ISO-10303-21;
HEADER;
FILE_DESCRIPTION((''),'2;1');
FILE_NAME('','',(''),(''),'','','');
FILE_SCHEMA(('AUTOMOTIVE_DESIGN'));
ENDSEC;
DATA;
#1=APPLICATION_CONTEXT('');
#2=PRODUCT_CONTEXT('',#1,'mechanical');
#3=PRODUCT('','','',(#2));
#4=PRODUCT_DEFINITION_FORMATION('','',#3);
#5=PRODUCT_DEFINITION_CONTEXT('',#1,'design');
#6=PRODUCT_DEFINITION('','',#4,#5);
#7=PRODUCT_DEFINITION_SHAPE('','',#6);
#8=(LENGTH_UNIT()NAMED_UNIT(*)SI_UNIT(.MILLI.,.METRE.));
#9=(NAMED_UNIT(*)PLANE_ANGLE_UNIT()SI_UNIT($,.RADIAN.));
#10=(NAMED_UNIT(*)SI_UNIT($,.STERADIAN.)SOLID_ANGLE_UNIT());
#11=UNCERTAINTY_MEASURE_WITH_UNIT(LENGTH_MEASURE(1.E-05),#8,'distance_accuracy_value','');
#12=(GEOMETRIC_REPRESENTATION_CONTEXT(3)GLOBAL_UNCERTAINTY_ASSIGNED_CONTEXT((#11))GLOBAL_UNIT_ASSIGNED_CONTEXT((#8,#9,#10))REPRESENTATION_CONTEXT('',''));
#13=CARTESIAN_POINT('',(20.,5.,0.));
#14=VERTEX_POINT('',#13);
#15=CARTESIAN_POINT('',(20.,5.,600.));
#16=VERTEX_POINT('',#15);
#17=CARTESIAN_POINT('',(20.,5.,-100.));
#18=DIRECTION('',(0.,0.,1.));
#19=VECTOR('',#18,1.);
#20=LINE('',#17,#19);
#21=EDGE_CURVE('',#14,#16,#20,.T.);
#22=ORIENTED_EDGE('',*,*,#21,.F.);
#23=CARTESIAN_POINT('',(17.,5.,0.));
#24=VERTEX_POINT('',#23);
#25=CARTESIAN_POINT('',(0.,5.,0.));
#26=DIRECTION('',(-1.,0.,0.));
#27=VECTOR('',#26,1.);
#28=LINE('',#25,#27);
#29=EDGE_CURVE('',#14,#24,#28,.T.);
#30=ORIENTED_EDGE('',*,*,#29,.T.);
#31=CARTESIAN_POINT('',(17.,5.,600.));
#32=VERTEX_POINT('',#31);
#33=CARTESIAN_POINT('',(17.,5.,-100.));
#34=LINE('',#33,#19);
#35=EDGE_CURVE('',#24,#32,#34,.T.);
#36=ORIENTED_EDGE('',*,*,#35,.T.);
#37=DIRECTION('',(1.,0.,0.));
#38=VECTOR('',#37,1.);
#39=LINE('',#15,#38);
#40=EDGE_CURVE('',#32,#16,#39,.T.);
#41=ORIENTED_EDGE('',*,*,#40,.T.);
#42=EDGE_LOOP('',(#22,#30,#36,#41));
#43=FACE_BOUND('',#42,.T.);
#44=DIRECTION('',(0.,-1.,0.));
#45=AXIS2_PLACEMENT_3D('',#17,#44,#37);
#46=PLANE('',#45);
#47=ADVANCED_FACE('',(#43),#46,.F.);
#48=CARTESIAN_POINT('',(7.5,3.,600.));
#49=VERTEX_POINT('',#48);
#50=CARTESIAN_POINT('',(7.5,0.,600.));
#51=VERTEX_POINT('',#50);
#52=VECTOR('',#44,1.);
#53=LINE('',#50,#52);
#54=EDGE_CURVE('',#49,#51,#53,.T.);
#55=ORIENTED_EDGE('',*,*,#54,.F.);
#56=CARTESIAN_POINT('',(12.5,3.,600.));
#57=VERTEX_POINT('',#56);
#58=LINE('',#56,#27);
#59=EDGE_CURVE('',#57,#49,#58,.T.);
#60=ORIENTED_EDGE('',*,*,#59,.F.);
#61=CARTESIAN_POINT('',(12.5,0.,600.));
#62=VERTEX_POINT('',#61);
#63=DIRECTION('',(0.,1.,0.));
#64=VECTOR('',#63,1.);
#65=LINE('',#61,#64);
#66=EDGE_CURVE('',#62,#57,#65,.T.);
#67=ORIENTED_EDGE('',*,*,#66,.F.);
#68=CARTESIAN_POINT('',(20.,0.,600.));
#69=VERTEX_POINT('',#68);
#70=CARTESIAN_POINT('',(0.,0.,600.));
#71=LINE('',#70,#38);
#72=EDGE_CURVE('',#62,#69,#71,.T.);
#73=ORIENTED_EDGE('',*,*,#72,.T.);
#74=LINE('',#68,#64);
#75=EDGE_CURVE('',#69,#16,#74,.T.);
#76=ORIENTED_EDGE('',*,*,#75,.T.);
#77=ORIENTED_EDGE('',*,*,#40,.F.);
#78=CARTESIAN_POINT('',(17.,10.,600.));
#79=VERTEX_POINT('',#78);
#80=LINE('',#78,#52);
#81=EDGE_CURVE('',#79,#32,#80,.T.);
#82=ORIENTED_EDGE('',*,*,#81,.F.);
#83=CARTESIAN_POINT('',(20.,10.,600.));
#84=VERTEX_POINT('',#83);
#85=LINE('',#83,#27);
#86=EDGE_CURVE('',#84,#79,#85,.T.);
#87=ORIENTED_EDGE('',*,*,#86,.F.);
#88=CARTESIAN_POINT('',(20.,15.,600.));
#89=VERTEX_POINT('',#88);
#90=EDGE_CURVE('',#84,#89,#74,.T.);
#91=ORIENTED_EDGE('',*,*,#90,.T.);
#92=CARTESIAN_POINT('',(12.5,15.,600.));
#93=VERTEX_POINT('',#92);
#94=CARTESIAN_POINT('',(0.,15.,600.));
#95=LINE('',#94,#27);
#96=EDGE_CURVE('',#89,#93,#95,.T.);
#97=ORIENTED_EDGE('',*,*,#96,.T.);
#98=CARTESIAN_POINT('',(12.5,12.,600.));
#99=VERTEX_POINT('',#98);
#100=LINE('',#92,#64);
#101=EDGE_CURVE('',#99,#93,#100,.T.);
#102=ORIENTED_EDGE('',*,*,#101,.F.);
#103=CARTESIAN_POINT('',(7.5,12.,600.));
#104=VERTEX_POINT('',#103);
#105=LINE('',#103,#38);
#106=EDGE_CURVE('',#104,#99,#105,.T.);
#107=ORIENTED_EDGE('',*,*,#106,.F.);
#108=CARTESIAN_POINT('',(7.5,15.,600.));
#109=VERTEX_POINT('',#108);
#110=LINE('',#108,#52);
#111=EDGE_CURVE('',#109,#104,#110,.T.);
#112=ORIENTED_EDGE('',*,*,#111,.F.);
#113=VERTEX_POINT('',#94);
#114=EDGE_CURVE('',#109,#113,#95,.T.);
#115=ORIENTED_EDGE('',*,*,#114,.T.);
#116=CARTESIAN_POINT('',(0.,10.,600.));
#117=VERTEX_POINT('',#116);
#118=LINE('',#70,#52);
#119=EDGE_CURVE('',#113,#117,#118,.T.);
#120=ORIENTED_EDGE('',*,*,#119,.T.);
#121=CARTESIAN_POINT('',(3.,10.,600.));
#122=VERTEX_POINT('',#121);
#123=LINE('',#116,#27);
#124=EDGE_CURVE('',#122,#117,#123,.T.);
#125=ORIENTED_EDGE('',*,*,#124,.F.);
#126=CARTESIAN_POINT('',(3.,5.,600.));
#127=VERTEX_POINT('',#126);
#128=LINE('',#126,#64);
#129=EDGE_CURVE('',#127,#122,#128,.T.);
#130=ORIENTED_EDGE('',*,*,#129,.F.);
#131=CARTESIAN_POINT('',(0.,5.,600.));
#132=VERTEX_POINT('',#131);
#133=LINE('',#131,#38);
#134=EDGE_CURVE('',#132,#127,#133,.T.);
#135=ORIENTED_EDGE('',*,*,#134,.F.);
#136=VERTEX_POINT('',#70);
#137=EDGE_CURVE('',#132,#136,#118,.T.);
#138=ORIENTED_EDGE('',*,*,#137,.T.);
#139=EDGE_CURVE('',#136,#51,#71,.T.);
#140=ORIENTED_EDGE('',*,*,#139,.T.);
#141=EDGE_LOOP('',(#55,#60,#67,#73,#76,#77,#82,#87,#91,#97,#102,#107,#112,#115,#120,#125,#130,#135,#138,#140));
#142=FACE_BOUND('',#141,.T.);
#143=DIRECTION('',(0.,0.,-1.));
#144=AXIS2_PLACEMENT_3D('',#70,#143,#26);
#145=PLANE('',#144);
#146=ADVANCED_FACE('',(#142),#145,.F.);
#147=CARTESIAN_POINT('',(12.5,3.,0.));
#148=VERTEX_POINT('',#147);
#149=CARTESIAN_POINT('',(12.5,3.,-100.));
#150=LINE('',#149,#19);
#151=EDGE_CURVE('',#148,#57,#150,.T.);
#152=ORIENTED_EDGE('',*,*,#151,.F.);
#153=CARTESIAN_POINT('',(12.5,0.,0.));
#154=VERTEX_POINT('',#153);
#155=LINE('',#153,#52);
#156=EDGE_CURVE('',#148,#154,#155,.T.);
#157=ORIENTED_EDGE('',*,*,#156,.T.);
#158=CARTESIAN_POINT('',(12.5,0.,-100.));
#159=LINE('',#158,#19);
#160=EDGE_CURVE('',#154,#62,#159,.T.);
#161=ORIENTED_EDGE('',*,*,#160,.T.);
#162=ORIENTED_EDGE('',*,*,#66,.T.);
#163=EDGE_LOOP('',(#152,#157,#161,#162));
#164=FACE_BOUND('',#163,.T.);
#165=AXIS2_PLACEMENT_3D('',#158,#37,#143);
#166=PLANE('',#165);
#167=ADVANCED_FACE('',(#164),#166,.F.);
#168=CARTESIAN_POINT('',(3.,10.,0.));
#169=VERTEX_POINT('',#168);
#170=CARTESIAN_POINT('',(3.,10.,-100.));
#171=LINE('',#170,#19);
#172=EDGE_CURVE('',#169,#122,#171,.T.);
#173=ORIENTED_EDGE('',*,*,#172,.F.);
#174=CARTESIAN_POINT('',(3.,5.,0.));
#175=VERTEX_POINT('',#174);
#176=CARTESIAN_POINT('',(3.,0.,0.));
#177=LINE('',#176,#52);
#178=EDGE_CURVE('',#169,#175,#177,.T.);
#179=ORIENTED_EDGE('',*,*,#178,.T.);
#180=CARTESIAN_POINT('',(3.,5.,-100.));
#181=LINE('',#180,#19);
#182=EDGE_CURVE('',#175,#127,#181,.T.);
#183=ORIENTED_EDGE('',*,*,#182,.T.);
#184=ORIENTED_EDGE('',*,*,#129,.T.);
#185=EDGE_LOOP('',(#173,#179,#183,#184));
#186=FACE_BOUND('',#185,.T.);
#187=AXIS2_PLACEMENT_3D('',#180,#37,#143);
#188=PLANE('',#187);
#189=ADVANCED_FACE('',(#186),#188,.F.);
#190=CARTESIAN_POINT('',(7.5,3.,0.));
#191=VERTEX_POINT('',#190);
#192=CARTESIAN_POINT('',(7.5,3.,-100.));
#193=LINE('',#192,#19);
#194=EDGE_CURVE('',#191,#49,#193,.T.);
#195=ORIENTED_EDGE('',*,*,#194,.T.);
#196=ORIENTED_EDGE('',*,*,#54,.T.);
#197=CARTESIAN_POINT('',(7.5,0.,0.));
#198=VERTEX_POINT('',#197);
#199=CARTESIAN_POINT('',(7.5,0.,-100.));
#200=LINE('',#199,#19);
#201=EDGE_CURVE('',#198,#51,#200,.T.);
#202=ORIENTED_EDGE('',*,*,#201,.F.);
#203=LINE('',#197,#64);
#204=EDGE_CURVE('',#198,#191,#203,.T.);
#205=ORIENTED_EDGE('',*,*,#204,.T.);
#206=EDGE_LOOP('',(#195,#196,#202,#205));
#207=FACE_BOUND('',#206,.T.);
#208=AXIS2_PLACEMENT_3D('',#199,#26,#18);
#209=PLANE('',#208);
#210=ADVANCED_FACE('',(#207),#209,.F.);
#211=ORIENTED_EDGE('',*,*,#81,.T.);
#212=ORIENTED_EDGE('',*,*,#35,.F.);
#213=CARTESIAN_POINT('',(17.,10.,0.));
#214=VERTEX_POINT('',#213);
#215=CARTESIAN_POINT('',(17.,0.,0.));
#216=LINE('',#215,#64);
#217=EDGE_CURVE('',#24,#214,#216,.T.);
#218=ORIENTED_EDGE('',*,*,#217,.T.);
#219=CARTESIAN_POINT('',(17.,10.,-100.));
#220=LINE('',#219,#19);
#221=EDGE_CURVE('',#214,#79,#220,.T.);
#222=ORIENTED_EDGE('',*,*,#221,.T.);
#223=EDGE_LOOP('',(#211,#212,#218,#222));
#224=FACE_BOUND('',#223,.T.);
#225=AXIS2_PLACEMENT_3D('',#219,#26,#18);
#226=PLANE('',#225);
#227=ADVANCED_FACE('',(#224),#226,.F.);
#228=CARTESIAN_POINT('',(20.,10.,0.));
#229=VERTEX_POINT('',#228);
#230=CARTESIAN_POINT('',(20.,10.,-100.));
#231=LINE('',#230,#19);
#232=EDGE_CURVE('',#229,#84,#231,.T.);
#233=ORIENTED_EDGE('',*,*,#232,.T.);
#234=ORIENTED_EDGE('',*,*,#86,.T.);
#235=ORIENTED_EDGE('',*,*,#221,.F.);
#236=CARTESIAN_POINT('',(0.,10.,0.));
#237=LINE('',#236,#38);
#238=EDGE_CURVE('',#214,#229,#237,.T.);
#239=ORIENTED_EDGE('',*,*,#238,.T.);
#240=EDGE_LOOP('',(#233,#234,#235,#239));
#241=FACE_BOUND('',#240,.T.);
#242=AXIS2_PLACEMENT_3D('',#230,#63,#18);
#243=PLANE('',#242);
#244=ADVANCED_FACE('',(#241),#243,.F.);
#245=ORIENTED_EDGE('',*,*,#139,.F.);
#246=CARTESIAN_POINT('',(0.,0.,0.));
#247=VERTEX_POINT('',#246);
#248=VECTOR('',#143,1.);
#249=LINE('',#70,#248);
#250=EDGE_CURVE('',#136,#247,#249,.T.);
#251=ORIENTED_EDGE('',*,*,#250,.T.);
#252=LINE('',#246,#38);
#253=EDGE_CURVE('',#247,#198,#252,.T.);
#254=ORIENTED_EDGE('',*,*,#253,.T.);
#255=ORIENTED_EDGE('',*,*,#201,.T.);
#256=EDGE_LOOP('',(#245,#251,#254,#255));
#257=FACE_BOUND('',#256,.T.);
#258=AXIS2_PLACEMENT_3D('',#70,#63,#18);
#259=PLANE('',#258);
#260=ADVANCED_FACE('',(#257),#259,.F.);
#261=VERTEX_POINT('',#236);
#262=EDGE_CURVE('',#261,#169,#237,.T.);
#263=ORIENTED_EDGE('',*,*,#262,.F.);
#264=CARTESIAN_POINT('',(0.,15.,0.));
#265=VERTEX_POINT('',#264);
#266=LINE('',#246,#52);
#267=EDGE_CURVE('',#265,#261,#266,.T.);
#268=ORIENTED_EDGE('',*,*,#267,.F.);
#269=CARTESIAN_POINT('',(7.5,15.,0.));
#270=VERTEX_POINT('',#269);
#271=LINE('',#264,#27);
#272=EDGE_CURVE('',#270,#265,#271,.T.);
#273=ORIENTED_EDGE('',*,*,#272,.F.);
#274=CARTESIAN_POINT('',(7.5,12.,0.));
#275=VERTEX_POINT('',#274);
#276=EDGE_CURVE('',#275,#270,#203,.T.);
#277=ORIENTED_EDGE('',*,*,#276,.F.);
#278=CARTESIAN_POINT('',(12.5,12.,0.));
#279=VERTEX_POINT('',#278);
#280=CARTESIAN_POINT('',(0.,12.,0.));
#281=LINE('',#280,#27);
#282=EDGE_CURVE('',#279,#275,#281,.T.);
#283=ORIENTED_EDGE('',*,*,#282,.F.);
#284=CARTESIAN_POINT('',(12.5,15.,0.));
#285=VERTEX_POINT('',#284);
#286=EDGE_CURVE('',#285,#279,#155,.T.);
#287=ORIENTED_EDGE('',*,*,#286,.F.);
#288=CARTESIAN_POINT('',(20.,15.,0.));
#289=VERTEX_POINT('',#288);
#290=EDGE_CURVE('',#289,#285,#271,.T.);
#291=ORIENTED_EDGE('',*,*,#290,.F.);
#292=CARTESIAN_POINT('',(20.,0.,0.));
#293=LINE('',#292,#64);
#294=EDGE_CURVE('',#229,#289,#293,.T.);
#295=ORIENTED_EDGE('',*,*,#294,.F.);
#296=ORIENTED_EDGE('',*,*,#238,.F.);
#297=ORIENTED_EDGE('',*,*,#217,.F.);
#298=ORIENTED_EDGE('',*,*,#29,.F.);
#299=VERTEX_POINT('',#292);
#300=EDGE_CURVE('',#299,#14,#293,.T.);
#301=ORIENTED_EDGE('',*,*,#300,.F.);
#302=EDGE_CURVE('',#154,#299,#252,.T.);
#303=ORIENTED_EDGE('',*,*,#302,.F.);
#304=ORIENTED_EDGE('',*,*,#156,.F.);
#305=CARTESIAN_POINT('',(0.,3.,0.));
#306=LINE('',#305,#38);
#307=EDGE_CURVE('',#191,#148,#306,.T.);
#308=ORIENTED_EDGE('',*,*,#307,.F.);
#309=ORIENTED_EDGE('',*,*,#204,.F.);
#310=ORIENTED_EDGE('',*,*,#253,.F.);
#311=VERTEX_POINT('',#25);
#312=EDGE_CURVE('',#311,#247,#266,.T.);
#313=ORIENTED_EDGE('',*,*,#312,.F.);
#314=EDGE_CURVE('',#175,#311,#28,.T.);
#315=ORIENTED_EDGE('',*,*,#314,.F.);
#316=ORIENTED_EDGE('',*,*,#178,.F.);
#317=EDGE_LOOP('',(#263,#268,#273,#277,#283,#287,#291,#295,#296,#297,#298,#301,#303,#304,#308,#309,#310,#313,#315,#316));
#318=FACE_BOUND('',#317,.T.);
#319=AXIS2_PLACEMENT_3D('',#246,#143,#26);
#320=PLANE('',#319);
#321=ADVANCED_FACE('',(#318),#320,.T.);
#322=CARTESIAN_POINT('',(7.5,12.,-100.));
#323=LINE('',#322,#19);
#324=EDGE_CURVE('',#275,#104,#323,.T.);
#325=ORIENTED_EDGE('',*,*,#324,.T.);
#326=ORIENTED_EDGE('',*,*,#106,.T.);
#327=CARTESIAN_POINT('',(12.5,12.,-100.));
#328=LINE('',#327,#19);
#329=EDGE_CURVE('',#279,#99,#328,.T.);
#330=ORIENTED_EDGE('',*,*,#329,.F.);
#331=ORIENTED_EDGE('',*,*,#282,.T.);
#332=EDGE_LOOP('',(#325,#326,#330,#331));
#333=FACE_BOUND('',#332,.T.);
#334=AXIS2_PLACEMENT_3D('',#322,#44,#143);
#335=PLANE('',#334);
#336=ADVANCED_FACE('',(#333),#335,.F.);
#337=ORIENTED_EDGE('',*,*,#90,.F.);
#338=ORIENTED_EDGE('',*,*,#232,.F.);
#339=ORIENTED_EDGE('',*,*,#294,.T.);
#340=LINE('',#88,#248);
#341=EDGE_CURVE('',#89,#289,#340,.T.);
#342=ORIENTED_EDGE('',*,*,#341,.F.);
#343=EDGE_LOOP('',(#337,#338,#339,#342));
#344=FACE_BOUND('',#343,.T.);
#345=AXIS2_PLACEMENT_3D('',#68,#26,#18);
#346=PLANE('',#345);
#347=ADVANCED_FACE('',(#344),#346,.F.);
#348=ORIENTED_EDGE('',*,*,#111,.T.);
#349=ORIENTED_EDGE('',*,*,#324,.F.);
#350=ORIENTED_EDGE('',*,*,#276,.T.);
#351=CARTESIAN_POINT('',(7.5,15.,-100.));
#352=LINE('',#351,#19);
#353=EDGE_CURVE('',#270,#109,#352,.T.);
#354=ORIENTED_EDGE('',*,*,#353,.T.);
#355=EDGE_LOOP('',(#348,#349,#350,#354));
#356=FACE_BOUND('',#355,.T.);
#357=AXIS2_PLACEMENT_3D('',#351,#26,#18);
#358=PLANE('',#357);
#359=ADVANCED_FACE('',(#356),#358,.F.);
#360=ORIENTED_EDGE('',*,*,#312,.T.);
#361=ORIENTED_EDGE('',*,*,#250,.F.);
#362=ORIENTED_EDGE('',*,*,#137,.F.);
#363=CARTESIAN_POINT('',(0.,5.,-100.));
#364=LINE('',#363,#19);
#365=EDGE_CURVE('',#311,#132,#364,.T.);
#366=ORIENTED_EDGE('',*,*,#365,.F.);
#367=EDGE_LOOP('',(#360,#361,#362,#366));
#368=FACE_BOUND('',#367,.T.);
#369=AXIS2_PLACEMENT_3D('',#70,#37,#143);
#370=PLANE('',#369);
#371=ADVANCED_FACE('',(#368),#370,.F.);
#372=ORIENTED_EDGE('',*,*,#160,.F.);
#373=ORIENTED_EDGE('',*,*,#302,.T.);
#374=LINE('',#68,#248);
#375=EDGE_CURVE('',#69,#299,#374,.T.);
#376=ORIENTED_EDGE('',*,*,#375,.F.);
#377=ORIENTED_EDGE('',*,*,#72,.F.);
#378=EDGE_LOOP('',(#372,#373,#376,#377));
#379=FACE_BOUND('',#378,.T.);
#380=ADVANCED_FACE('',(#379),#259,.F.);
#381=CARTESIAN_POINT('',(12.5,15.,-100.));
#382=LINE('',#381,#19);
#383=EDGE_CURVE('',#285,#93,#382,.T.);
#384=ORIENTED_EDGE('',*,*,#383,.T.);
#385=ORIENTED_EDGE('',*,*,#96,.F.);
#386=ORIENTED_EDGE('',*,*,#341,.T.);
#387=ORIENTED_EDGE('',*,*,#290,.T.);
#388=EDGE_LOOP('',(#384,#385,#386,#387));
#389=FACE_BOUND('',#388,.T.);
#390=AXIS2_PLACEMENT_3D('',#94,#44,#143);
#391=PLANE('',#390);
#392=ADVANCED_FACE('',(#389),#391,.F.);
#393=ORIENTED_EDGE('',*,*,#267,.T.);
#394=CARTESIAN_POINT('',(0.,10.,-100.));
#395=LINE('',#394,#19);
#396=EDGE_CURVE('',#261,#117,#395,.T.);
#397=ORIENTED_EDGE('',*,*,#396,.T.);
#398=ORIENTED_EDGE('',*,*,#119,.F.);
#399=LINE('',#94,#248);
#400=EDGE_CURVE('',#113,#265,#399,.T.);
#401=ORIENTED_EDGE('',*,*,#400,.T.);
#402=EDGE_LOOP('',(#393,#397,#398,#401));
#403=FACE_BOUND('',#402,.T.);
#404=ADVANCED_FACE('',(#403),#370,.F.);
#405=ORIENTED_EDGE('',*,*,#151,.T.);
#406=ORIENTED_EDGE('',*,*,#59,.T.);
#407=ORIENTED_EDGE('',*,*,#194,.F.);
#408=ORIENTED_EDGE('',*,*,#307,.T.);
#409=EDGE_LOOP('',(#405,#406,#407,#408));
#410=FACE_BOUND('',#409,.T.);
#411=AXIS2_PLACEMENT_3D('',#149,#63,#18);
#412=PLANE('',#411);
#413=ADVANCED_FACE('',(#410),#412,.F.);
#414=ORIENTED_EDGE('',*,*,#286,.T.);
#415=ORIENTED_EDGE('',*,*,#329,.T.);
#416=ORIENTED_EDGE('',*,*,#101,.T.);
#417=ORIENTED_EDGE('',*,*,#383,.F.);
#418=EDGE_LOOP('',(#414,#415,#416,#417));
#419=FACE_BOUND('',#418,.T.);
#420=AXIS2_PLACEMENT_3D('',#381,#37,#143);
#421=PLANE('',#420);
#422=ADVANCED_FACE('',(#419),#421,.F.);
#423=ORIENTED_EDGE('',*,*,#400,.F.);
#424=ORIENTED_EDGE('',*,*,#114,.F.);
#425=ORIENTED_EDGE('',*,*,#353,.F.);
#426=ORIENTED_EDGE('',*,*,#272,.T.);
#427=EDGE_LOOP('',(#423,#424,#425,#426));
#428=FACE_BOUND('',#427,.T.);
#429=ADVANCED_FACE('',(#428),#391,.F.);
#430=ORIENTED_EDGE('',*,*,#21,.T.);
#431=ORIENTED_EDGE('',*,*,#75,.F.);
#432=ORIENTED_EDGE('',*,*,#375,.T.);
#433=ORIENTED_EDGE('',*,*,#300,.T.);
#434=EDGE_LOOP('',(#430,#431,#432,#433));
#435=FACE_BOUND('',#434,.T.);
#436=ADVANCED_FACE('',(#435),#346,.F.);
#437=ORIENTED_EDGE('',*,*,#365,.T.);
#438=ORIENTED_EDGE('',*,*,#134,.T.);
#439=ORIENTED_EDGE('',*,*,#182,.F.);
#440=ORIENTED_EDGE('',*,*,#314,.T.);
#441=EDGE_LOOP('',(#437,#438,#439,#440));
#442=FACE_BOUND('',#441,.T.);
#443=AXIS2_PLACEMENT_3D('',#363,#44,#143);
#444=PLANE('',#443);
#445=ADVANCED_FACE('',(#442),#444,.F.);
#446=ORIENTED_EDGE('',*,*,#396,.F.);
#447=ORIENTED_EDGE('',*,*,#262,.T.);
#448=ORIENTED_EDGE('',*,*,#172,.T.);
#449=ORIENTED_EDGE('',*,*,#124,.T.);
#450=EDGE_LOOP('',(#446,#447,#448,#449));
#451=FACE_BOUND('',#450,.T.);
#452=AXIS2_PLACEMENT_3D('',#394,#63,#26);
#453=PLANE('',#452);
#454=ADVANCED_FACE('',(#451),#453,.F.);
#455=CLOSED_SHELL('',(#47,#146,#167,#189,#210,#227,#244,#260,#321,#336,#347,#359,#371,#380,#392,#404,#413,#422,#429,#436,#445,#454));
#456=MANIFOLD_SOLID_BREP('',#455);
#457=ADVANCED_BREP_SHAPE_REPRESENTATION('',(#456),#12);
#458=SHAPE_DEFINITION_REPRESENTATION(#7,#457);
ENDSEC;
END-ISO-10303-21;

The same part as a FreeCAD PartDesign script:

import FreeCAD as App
import Part
import Sketcher
from FreeCAD import Vector
Q = App.Units.Quantity


def add_polygon(sketch, points):
    """Adds a closed chain of lines whose ends are joined by coincident constraints."""
    first, n = sketch.GeometryCount, len(points)
    for a, b in zip(points, points[1:] + points[:1]):
        sketch.addGeometry(Part.LineSegment(App.Vector(*a, 0), App.Vector(*b, 0)), False)
    for i in range(n):
        sketch.addConstraint(Sketcher.Constraint("Coincident", first + i, 2, first + (i + 1) % n, 1))

doc = App.newDocument("Part")
body = doc.addObject("PartDesign::Body", "Body")

sketch1 = body.newObject("Sketcher::SketchObject", "Sketch")
sketch1.AttachmentSupport = (doc.getObject("XY_Plane"), [""])
sketch1.MapMode = "FlatFace"
add_polygon(sketch1, [(0, 15), (0, 0), (20, 0), (20, 15)])
sketch1.addConstraint(Sketcher.Constraint("Vertical", 0))
sketch1.addConstraint(Sketcher.Constraint("Horizontal", 1))
sketch1.addConstraint(Sketcher.Constraint("Vertical", 2))
sketch1.addConstraint(Sketcher.Constraint("Horizontal", 3))
sketch1.addConstraint(Sketcher.Constraint("Coincident", 0, 2, -1, 1))
sketch1.addConstraint(Sketcher.Constraint("DistanceX", 1, 1, 1, 2, Q("20 mm")))
sketch1.addConstraint(Sketcher.Constraint("DistanceY", 0, 2, 0, 1, Q("15 mm")))
pad1 = body.newObject("PartDesign::Pad", "Pad")
pad1.Profile = sketch1
pad1.Length = 600

sketch2 = body.newObject("Sketcher::SketchObject", "Sketch001")
sketch2.AttachmentSupport = (doc.getObject("XY_Plane"), [""])
sketch2.MapMode = "FlatFace"
sketch2.AttachmentOffset = App.Placement(Vector(0, 0, 600), App.Rotation())
add_polygon(sketch2, [(7.5, 15), (7.5, 12), (12.5, 12), (12.5, 15)])
add_polygon(sketch2, [(17, 10), (17, 5), (20, 5), (20, 10)])
add_polygon(sketch2, [(7.5, 3), (7.5, 0), (12.5, 0), (12.5, 3)])
add_polygon(sketch2, [(0, 10), (0, 5), (3, 5), (3, 10)])
sketch2.addConstraint(Sketcher.Constraint("Vertical", 0))
sketch2.addConstraint(Sketcher.Constraint("Horizontal", 1))
sketch2.addConstraint(Sketcher.Constraint("Vertical", 2))
sketch2.addConstraint(Sketcher.Constraint("Horizontal", 3))
sketch2.addConstraint(Sketcher.Constraint("Vertical", 4))
sketch2.addConstraint(Sketcher.Constraint("Horizontal", 5))
sketch2.addConstraint(Sketcher.Constraint("Vertical", 6))
sketch2.addConstraint(Sketcher.Constraint("Horizontal", 7))
sketch2.addConstraint(Sketcher.Constraint("Vertical", 8))
sketch2.addConstraint(Sketcher.Constraint("Horizontal", 9))
sketch2.addConstraint(Sketcher.Constraint("Vertical", 10))
sketch2.addConstraint(Sketcher.Constraint("Horizontal", 11))
sketch2.addConstraint(Sketcher.Constraint("Vertical", 12))
sketch2.addConstraint(Sketcher.Constraint("Horizontal", 13))
sketch2.addConstraint(Sketcher.Constraint("Vertical", 14))
sketch2.addConstraint(Sketcher.Constraint("Horizontal", 15))
sketch2.addConstraint(Sketcher.Constraint("PointOnObject", 8, 2, -1))
sketch2.addConstraint(Sketcher.Constraint("PointOnObject", 12, 2, -2))
sketch2.addConstraint(Sketcher.Constraint("Horizontal", 5, 2, 12, 2))
sketch2.addConstraint(Sketcher.Constraint("Horizontal", 7, 2, 14, 2))
sketch2.addConstraint(Sketcher.Constraint("Vertical", 3, 2, 8, 2))
sketch2.addConstraint(Sketcher.Constraint("Vertical", 2, 2, 9, 2))
sketch2.addConstraint(Sketcher.Constraint("Equal", 7, 13))
sketch2.addConstraint(Sketcher.Constraint("Equal", 15, 0))
sketch2.addConstraint(Sketcher.Constraint("Equal", 11, 4))
sketch2.addConstraint(Sketcher.Constraint("Equal", 2, 8))
sketch2.addConstraint(Sketcher.Constraint("DistanceX", 1, 1, 1, 2, Q("5 mm")))
sketch2.addConstraint(Sketcher.Constraint("DistanceX", 5, 1, 5, 2, Q("3 mm")))
sketch2.addConstraint(Sketcher.Constraint("DistanceY", -1, 1, 0, 2, Q("12 mm")))
sketch2.addConstraint(Sketcher.Constraint("DistanceX", -1, 1, 4, 2, Q("17 mm")))
sketch2.addConstraint(Sketcher.Constraint("DistanceY", -1, 1, 4, 2, Q("5 mm")))
sketch2.addConstraint(Sketcher.Constraint("DistanceX", -1, 1, 0, 2, Q("7.5 mm")))
pocket1 = body.newObject("PartDesign::Pocket", "Pocket")
pocket1.Profile = sketch2
pocket1.Length = 700

doc.recompute()
